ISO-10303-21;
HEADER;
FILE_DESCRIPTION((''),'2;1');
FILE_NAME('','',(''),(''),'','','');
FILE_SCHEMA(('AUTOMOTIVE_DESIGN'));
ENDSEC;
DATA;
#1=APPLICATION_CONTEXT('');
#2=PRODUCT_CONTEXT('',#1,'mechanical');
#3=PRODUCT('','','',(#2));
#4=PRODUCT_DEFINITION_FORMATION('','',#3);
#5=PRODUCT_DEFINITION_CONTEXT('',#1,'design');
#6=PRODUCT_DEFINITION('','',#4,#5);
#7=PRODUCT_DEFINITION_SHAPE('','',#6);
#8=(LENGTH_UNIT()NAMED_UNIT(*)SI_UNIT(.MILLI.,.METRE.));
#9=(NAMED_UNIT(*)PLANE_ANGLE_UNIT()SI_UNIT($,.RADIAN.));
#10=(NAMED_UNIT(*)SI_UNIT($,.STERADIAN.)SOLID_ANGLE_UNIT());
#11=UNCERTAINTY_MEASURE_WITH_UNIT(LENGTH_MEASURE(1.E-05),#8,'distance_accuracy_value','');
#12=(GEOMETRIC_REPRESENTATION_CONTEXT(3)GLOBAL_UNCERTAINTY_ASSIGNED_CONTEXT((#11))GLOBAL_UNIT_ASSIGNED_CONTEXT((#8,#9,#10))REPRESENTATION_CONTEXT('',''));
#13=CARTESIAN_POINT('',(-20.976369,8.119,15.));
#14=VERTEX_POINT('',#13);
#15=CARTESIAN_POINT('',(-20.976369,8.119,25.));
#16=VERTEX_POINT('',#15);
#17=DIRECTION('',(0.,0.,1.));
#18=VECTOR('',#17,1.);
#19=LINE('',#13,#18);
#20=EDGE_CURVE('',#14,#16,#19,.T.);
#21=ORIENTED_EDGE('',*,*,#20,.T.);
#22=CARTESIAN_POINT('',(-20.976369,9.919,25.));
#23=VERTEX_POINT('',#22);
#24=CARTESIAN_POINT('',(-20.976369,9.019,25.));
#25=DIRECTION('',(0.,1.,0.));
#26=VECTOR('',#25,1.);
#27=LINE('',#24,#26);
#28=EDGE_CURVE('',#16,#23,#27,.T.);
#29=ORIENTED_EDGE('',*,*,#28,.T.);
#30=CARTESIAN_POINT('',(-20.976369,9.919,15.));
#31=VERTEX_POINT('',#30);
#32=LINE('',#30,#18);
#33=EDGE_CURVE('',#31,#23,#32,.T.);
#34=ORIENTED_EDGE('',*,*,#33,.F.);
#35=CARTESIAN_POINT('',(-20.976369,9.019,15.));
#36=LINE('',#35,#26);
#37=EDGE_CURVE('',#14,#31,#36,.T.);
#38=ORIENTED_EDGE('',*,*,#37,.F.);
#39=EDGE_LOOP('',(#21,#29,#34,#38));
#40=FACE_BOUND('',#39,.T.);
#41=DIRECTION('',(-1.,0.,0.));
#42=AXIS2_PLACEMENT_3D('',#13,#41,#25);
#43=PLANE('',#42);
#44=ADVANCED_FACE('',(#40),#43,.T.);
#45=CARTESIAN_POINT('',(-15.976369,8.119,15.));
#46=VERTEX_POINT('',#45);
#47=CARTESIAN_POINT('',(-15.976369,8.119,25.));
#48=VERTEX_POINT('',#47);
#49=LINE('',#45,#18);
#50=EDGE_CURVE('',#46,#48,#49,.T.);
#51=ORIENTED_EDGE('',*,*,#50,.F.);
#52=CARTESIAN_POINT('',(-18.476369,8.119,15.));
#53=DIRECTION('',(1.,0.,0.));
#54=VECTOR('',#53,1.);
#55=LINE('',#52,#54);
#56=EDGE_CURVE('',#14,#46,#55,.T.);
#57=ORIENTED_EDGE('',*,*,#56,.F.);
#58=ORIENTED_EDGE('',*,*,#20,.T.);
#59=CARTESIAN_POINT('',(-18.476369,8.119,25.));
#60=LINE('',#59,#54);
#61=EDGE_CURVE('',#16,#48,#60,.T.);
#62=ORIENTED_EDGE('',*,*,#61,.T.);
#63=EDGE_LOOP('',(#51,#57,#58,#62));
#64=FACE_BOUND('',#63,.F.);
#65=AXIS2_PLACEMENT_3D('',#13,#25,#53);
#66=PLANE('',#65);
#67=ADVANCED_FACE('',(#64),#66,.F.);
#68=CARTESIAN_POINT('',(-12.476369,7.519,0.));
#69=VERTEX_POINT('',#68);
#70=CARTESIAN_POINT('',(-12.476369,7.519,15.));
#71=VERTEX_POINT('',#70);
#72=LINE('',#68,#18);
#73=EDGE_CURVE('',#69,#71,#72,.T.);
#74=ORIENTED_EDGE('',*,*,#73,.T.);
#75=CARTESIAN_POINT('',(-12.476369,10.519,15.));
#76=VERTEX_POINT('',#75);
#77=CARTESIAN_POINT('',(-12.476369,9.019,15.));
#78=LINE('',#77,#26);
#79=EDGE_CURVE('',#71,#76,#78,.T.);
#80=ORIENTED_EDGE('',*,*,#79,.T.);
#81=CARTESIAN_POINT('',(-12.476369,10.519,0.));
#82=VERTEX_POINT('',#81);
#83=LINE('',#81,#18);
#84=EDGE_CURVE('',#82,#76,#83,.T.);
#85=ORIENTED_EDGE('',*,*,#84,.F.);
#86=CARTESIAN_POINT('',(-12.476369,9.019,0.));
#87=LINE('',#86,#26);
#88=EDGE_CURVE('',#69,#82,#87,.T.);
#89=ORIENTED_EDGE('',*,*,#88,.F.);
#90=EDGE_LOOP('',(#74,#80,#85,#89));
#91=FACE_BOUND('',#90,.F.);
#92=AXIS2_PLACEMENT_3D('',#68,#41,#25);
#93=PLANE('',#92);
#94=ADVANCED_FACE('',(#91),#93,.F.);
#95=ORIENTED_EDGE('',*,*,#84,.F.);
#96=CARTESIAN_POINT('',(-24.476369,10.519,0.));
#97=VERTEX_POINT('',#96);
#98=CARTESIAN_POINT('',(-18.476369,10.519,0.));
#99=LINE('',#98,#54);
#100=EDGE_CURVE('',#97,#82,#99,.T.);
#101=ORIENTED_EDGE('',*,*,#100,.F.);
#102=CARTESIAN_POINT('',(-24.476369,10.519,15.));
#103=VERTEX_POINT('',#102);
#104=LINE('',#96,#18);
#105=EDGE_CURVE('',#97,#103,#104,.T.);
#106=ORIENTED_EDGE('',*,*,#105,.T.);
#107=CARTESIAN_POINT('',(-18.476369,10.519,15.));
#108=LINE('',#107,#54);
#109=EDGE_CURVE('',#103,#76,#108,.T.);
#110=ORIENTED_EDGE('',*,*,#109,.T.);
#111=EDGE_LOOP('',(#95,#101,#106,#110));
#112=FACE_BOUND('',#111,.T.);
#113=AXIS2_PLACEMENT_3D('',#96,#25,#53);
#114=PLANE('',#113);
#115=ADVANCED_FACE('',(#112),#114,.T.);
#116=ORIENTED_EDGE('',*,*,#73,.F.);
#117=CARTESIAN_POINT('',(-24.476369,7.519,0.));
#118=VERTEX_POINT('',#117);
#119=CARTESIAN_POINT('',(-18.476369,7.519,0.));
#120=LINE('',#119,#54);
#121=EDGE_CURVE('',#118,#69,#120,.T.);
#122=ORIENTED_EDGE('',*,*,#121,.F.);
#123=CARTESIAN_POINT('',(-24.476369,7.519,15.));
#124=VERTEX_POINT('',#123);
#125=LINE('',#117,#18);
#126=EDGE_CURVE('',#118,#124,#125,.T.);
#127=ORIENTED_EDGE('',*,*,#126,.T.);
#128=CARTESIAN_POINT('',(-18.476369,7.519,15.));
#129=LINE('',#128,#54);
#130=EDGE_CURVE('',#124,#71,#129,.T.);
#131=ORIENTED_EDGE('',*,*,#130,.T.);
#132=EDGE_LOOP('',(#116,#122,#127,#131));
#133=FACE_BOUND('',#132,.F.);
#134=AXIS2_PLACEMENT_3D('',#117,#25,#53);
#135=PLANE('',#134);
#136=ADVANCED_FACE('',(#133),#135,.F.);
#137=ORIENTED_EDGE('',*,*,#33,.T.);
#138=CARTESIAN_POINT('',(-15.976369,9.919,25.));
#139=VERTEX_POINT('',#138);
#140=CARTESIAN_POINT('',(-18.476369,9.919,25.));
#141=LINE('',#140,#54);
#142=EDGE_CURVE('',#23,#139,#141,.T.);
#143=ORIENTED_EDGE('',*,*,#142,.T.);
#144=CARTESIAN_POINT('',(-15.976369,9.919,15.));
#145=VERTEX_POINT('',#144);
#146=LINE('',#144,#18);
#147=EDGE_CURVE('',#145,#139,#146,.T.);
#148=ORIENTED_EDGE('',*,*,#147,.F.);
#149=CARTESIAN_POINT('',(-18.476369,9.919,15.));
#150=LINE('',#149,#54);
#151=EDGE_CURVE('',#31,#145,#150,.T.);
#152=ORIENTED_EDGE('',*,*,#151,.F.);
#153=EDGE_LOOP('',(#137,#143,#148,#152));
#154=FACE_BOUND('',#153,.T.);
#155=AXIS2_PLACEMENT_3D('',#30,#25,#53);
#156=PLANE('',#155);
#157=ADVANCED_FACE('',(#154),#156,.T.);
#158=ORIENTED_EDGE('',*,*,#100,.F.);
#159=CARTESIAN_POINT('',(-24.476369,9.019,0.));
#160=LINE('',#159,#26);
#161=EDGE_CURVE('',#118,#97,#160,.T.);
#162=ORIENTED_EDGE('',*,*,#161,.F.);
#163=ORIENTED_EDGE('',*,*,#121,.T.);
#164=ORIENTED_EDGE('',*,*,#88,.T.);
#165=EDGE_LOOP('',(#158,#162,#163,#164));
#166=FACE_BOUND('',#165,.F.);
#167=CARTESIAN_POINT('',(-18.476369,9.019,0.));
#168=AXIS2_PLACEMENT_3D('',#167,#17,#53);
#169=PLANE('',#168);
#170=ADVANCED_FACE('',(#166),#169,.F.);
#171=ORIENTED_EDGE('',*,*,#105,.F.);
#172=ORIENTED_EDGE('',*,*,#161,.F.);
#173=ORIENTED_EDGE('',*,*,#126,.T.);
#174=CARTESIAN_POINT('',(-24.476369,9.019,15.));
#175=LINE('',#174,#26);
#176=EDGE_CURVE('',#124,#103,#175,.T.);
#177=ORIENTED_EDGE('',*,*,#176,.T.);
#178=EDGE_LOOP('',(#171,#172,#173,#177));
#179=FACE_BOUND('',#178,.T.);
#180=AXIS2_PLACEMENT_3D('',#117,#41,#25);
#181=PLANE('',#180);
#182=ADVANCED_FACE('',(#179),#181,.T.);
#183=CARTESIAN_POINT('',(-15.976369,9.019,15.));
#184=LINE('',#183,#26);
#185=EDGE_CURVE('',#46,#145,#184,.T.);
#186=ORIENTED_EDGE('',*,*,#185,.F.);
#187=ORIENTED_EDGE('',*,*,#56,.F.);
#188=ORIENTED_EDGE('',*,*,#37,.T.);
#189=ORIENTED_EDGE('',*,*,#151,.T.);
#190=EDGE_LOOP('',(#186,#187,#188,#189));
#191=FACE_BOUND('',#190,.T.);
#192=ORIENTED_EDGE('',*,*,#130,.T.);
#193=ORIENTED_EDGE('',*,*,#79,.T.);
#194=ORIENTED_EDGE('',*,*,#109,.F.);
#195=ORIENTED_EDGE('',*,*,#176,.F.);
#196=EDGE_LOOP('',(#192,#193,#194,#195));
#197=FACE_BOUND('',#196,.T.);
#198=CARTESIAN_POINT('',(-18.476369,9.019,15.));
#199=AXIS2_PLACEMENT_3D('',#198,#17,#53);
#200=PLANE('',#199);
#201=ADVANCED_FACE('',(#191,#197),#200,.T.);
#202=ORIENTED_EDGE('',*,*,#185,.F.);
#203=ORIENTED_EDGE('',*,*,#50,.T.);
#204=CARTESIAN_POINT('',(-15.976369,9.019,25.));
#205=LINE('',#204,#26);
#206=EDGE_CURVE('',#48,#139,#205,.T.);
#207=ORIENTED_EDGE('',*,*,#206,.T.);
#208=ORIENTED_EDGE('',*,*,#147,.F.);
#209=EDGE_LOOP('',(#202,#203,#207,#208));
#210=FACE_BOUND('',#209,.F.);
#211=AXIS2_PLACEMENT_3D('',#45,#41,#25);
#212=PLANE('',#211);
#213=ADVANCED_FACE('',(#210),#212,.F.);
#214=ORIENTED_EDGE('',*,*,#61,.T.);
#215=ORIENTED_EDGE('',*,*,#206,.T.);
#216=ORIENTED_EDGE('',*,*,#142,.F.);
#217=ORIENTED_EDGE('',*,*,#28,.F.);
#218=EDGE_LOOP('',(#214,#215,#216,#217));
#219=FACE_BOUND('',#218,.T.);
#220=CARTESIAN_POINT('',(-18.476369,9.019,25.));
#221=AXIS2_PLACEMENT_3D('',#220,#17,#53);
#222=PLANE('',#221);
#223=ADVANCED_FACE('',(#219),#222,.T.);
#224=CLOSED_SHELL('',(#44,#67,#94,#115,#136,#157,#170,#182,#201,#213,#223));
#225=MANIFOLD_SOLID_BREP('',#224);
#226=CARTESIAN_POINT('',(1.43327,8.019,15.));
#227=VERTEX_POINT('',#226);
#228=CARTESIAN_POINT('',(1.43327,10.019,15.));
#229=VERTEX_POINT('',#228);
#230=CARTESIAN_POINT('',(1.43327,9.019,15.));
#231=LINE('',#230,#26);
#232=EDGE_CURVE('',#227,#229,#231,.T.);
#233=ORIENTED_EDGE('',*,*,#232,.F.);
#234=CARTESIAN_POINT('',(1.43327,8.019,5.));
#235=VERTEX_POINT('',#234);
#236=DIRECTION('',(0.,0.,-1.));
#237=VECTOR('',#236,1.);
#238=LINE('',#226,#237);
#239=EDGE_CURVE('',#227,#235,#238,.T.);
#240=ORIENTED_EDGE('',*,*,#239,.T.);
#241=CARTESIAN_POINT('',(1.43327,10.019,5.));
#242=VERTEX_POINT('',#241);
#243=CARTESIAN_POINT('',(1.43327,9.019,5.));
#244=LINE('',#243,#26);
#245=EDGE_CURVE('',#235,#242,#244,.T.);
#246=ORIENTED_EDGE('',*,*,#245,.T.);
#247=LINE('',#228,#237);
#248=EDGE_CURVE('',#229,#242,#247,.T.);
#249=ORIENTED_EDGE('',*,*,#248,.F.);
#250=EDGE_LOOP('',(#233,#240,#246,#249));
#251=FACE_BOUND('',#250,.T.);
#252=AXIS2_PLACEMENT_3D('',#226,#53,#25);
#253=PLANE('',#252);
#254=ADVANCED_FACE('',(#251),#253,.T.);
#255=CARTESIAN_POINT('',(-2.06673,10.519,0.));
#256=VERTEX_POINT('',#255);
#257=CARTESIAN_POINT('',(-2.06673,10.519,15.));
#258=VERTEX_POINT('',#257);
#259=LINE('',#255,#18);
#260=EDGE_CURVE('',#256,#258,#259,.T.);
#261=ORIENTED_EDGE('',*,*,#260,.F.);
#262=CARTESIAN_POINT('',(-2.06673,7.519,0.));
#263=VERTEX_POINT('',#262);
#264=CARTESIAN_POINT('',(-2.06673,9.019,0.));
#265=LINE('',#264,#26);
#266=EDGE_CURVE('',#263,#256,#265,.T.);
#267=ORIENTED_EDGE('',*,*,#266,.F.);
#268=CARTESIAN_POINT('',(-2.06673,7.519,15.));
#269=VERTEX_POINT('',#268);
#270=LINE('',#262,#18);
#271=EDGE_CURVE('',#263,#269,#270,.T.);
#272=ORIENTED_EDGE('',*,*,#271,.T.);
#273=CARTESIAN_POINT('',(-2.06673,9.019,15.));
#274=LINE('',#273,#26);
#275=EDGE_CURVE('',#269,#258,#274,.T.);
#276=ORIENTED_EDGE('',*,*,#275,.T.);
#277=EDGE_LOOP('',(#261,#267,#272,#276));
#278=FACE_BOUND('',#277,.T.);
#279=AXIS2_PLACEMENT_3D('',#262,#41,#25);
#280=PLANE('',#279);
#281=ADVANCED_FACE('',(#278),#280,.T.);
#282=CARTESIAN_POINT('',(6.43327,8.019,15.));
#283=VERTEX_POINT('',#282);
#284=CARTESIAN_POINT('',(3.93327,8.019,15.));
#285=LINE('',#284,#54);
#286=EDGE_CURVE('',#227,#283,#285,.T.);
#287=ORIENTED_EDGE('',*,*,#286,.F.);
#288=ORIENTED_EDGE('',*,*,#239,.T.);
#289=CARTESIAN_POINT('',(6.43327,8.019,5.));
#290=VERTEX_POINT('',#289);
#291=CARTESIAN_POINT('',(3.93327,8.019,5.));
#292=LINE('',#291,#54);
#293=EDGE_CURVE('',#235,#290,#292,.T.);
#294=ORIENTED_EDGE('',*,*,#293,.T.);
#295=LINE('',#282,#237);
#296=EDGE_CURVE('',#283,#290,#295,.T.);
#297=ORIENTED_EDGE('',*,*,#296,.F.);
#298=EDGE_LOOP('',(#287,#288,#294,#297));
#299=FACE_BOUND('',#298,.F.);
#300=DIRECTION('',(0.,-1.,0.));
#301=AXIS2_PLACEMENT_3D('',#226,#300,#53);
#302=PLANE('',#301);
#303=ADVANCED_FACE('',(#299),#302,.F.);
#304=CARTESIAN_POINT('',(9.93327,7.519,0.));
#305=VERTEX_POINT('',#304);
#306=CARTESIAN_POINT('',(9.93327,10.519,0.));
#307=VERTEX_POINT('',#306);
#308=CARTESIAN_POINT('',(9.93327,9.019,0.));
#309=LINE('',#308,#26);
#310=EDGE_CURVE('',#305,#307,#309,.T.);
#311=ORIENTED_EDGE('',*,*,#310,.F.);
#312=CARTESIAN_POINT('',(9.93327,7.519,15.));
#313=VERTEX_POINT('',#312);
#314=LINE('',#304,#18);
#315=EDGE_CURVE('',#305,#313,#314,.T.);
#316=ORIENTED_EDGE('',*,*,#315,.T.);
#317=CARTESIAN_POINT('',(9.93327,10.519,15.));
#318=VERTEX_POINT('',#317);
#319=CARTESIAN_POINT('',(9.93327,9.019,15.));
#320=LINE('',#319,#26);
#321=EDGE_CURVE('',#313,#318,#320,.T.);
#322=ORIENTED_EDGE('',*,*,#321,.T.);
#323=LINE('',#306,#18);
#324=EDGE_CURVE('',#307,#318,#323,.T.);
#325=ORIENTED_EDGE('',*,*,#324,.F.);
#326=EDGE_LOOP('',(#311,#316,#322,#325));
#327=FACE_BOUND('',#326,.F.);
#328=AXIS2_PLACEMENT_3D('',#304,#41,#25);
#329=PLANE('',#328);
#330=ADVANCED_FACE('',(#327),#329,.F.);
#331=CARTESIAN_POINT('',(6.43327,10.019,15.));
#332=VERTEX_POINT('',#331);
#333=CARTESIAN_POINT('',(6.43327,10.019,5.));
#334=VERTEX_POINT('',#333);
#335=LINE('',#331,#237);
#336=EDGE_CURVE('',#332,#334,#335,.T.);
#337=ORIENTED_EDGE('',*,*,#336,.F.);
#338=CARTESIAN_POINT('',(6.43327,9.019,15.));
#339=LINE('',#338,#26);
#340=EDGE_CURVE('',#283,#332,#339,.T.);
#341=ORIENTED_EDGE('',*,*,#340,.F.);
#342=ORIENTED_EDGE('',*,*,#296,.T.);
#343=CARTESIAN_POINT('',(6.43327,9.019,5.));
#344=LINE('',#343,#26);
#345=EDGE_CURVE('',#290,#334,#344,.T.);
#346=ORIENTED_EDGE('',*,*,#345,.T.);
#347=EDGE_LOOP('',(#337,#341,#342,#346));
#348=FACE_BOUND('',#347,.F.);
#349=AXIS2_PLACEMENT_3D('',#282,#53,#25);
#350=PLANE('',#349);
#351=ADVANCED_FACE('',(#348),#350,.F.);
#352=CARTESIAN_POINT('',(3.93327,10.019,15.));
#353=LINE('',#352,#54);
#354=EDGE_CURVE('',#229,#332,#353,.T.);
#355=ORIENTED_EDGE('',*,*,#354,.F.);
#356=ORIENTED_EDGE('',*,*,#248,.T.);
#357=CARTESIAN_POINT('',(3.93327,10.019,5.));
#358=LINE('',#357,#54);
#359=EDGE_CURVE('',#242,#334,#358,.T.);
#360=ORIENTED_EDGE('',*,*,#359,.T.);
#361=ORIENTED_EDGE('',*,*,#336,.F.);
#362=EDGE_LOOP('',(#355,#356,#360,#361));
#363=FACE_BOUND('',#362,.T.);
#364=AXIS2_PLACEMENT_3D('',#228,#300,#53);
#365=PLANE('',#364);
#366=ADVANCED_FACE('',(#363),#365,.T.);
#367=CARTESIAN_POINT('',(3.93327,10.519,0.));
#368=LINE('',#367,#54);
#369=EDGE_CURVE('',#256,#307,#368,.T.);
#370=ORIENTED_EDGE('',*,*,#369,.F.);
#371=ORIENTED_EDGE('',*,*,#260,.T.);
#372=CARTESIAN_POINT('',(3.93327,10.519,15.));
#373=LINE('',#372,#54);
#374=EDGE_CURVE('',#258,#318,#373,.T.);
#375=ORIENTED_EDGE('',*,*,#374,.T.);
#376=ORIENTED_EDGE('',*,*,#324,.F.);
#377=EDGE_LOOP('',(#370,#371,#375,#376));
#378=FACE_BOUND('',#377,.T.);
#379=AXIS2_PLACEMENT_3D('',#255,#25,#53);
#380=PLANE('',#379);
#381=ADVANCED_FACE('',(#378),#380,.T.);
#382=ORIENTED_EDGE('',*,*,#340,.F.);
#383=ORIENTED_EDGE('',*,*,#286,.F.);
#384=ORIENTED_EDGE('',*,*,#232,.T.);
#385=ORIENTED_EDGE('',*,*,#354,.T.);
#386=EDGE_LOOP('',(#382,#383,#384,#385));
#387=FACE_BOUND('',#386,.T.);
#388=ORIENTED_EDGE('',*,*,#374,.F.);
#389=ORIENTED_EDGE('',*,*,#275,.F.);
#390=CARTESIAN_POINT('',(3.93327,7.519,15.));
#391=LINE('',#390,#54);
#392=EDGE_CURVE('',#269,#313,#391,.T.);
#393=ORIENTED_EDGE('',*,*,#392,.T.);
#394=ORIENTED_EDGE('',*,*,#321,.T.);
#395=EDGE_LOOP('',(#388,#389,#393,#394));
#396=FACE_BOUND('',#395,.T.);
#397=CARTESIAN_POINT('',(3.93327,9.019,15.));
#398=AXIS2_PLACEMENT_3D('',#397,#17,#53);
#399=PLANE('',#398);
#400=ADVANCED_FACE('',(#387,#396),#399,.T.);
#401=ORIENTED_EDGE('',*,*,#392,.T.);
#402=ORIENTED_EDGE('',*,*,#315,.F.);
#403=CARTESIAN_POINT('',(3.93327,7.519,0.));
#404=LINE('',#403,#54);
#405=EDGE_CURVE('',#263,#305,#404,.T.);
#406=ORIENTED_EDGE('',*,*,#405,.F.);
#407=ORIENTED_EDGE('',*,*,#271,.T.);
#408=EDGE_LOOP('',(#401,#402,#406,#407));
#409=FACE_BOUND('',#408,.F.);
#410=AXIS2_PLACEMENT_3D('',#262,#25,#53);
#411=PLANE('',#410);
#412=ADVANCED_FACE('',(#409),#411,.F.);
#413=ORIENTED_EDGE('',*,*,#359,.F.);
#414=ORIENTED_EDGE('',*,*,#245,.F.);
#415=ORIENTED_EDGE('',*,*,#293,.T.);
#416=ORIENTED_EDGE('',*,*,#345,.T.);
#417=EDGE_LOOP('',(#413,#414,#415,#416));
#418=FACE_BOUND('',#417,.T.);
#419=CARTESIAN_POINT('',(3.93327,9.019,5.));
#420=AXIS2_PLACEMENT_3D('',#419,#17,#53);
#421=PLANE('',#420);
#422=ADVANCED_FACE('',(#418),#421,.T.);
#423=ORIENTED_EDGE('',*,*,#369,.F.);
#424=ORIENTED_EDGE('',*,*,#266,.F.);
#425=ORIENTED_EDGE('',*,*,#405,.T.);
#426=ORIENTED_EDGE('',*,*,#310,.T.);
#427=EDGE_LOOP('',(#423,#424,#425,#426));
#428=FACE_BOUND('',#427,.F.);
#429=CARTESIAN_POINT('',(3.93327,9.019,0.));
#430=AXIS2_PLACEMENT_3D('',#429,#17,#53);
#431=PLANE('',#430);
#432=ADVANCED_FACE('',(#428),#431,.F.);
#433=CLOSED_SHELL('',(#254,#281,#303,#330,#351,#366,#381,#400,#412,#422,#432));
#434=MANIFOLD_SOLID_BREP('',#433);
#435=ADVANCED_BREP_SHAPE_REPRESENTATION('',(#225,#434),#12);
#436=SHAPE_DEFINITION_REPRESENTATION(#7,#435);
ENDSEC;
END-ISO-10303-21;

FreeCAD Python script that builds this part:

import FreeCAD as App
import Part
import Sketcher

doc = App.newDocument("Part")
body = doc.addObject("PartDesign::Body", "Body")
body.AllowCompound = True

# Sketch on XY plane
sketch1 = doc.addObject("Sketcher::SketchObject", "Sketch")
body.addObject(sketch1)
sketch1.AttachmentSupport = (doc.XY_Plane, [""])
sketch1.MapMode = "FlatFace"
sketch1.addGeometry([
    Part.LineSegment(App.Vector(-24.5, 10.5, 0), App.Vector(-24.5, 7.5, 0)),  # 0
    Part.LineSegment(App.Vector(-24.5, 7.5, 0), App.Vector(-12.5, 7.5, 0)),  # 1
    Part.LineSegment(App.Vector(-12.5, 7.5, 0), App.Vector(-12.5, 10.5, 0)),  # 2
    Part.LineSegment(App.Vector(-12.5, 10.5, 0), App.Vector(-24.5, 10.5, 0)),  # 3
    Part.LineSegment(App.Vector(-2.1, 10.5, 0), App.Vector(-2.1, 7.5, 0)),  # 4
    Part.LineSegment(App.Vector(-2.1, 7.5, 0), App.Vector(9.9, 7.5, 0)),  # 5
    Part.LineSegment(App.Vector(9.9, 7.5, 0), App.Vector(9.9, 10.5, 0)),  # 6
    Part.LineSegment(App.Vector(9.9, 10.5, 0), App.Vector(-2.1, 10.5, 0)),  # 7
], False)
sketch1.addConstraint([
    Sketcher.Constraint("Coincident", 0, 2, 1, 1),
    Sketcher.Constraint("Coincident", 1, 2, 2, 1),
    Sketcher.Constraint("Coincident", 2, 2, 3, 1),
    Sketcher.Constraint("Coincident", 3, 2, 0, 1),
    Sketcher.Constraint("Coincident", 4, 2, 5, 1),
    Sketcher.Constraint("Coincident", 5, 2, 6, 1),
    Sketcher.Constraint("Coincident", 6, 2, 7, 1),
    Sketcher.Constraint("Coincident", 7, 2, 4, 1),
    Sketcher.Constraint("Vertical", 0),
    Sketcher.Constraint("Horizontal", 1),
    Sketcher.Constraint("Vertical", 2),
    Sketcher.Constraint("Horizontal", 3),
    Sketcher.Constraint("Vertical", 4),
    Sketcher.Constraint("Horizontal", 5),
    Sketcher.Constraint("Vertical", 6),
    Sketcher.Constraint("Horizontal", 7),
    Sketcher.Constraint("Horizontal", 1, 2, 4, 2),
    Sketcher.Constraint("Horizontal", 3, 2, 6, 2),
    Sketcher.Constraint("Equal", 3, 5),
    Sketcher.Constraint("DistanceX", 1, 1, 1, 2, 12.0),
    Sketcher.Constraint("DistanceY", 0, 2, 0, 1, 3.0),
    Sketcher.Constraint("DistanceY", -1, 1, 0, 2, 7.519),
    Sketcher.Constraint("DistanceX", 0, 2, -1, 1, 24.476369),
    Sketcher.Constraint("DistanceX", 4, 2, -1, 1, 2.06673),
])
pad1 = doc.addObject("PartDesign::Pad", "Pad")
body.addObject(pad1)
pad1.Profile = sketch1
pad1.Length = 15

# Sketch on XY plane
sketch2 = doc.addObject("Sketcher::SketchObject", "Sketch001")
body.addObject(sketch2)
sketch2.AttachmentSupport = (doc.XY_Plane, [""])
sketch2.MapMode = "FlatFace"
sketch2.AttachmentOffset = App.Placement(App.Vector(0, 0, 15), App.Rotation())
sketch2.addGeometry([
    Part.LineSegment(App.Vector(-21, 9.9, 0), App.Vector(-21, 8.1, 0)),
    Part.LineSegment(App.Vector(-21, 8.1, 0), App.Vector(-16, 8.1, 0)),
    Part.LineSegment(App.Vector(-16, 8.1, 0), App.Vector(-16, 9.9, 0)),
    Part.LineSegment(App.Vector(-16, 9.9, 0), App.Vector(-21, 9.9, 0)),
], False)
sketch2.addConstraint([
    Sketcher.Constraint("Coincident", 0, 2, 1, 1),
    Sketcher.Constraint("Coincident", 1, 2, 2, 1),
    Sketcher.Constraint("Coincident", 2, 2, 3, 1),
    Sketcher.Constraint("Coincident", 3, 2, 0, 1),
    Sketcher.Constraint("Vertical", 0),
    Sketcher.Constraint("Horizontal", 1),
    Sketcher.Constraint("Vertical", 2),
    Sketcher.Constraint("Horizontal", 3),
    Sketcher.Constraint("DistanceX", 1, 1, 1, 2, 5.0),
    Sketcher.Constraint("DistanceY", 0, 2, 0, 1, 1.8),
    Sketcher.Constraint("DistanceY", -1, 1, 0, 2, 8.119),
    Sketcher.Constraint("DistanceX", 0, 2, -1, 1, 20.976369),
])
pad2 = doc.addObject("PartDesign::Pad", "Pad001")
body.addObject(pad2)
pad2.Profile = sketch2
pad2.Length = 10

# Sketch on XY plane
sketch3 = doc.addObject("Sketcher::SketchObject", "Sketch002")
body.addObject(sketch3)
sketch3.AttachmentSupport = (doc.XY_Plane, [""])
sketch3.MapMode = "FlatFace"
sketch3.AttachmentOffset = App.Placement(App.Vector(0, 0, 15), App.Rotation())
sketch3.addGeometry([
    Part.LineSegment(App.Vector(1.4, 10, 0), App.Vector(1.4, 8, 0)),
    Part.LineSegment(App.Vector(1.4, 8, 0), App.Vector(6.4, 8, 0)),
    Part.LineSegment(App.Vector(6.4, 8, 0), App.Vector(6.4, 10, 0)),
    Part.LineSegment(App.Vector(6.4, 10, 0), App.Vector(1.4, 10, 0)),
], False)
sketch3.addConstraint([
    Sketcher.Constraint("Coincident", 0, 2, 1, 1),
    Sketcher.Constraint("Coincident", 1, 2, 2, 1),
    Sketcher.Constraint("Coincident", 2, 2, 3, 1),
    Sketcher.Constraint("Coincident", 3, 2, 0, 1),
    Sketcher.Constraint("Vertical", 0),
    Sketcher.Constraint("Horizontal", 1),
    Sketcher.Constraint("Vertical", 2),
    Sketcher.Constraint("Horizontal", 3),
    Sketcher.Constraint("DistanceX", 1, 1, 1, 2, 5.0),
    Sketcher.Constraint("DistanceY", 0, 2, 0, 1, 2.0),
    Sketcher.Constraint("DistanceY", -1, 1, 0, 2, 8.019),
    Sketcher.Constraint("DistanceX", -1, 1, 0, 2, 1.43327),
])
pocket1 = doc.addObject("PartDesign::Pocket", "Pocket")
body.addObject(pocket1)
pocket1.Profile = sketch3
pocket1.Length = 10

doc.recompute()
